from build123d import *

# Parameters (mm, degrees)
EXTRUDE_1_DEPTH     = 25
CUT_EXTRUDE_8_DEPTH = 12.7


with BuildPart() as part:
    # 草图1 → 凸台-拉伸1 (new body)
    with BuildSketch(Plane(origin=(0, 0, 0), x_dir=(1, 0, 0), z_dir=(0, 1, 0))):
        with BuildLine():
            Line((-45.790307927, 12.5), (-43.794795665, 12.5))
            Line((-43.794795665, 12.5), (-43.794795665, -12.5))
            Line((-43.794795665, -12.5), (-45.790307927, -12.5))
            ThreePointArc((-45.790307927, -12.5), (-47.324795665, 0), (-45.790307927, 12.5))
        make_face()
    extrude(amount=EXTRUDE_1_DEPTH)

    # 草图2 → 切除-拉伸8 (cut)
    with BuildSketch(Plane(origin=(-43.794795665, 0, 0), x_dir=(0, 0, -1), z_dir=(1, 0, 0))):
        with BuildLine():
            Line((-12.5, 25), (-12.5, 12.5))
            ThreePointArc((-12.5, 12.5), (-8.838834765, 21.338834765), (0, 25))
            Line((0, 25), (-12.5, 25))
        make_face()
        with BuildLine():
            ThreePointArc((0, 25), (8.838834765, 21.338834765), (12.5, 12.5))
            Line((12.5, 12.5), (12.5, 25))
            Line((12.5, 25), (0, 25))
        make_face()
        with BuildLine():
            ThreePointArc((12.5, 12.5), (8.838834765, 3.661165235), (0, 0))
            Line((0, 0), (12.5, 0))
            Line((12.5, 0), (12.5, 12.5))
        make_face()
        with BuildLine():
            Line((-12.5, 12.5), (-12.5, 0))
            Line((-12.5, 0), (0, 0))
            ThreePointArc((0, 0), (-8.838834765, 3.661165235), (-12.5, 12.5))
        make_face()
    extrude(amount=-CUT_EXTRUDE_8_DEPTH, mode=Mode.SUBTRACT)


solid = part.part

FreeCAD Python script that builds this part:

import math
import FreeCAD as App
import Part
import Sketcher
from FreeCAD import Vector

doc = App.newDocument("Part")
params = doc.addObject("Spreadsheet::Sheet", "Params")
for row, (alias, value) in enumerate([
    ("sketch1_height", "25 mm"),
    ("sketch1_radius", "51.68 mm"),
    ("pad1_length", "25 mm"),
    ("sketch2_radius", "12.5 mm"),
    ("pocket1_length", "12.7 mm"),
], start=1):
    params.set(f"A{row}", alias)
    params.set(f"B{row}", "=" + value)
    params.setAlias(f"B{row}", alias)

body = doc.addObject("PartDesign::Body", "Body")

# Sketch on XZ plane
sketch1 = body.newObject("Sketcher::SketchObject", "Sketch")
sketch1.AttachmentSupport = (doc.getObject("XZ_Plane"), [""])
sketch1.MapMode = "FlatFace"
sketch1.addGeometry(Part.LineSegment(Vector(-43.8, -12.5, 0), Vector(-45.8, -12.5, 0)), False)
sketch1.addGeometry(Part.ArcOfCircle(Part.Circle(Vector(4.4, 0, 0), Vector(0, 0, 1), 51.7), math.radians(166), math.radians(194)), False)
sketch1.addGeometry(Part.LineSegment(Vector(-45.8, 12.5, 0), Vector(-43.8, 12.5, 0)), False)
sketch1.addGeometry(Part.LineSegment(Vector(-43.8, 12.5, 0), Vector(-43.8, -12.5, 0)), False)
sketch1.addConstraint(Sketcher.Constraint("Coincident", 0, 2, 1, 2))
sketch1.addConstraint(Sketcher.Constraint("Coincident", 1, 1, 2, 1))
sketch1.addConstraint(Sketcher.Constraint("Coincident", 2, 2, 3, 1))
sketch1.addConstraint(Sketcher.Constraint("Coincident", 3, 2, 0, 1))
sketch1.addConstraint(Sketcher.Constraint("Horizontal", 0))
sketch1.addConstraint(Sketcher.Constraint("Horizontal", 2))
sketch1.addConstraint(Sketcher.Constraint("Vertical", 3))
sketch1.addConstraint(Sketcher.Constraint("Symmetric", 0, 2, 1, 1, -1))
sketch1.addConstraint(Sketcher.Constraint("DistanceY", 3, 2, 3, 1, 25.0))
sketch1.addConstraint(Sketcher.Constraint("Radius", 1, 51.68))
sketch1.addConstraint(Sketcher.Constraint("DistanceX", 2, 2, 1, 3, 48.15))
sketch1.addConstraint(Sketcher.Constraint("DistanceX", -1, 1, 1, 3, 4.355204))
sketch1.setExpression("Constraints[8]", "Params.sketch1_height")
sketch1.setExpression("Constraints[9]", "Params.sketch1_radius")
pad1 = body.newObject("PartDesign::Pad", "Pad")
pad1.Profile = sketch1
pad1.setExpression("Length", "Params.pad1_length")
pad1.Reversed = True

# Sketch on YZ plane
sketch2 = body.newObject("Sketcher::SketchObject", "Sketch001")
sketch2.AttachmentSupport = (doc.getObject("YZ_Plane"), [""])
sketch2.MapMode = "FlatFace"
sketch2.AttachmentOffset = App.Placement(Vector(0, 0, -43.794796), App.Rotation())
sketch2.addGeometry(Part.LineSegment(Vector(25, 12, 0), Vector(12, 12, 0)), False)
sketch2.addGeometry(Part.ArcOfCircle(Part.Circle(Vector(13, 0, 0), Vector(0, 0, 1), 12), math.radians(0), math.radians(90)), False)
sketch2.addGeometry(Part.LineSegment(Vector(25, 0, 0), Vector(25, 12, 0)), False)
sketch2.addGeometry(Part.ArcOfCircle(Part.Circle(Vector(13, 0, 0), Vector(0, 0, 1), 12), math.radians(-90), math.radians(0)), False)
sketch2.addGeometry(Part.LineSegment(Vector(12, -12, 0), Vector(25, -12, 0)), False)
sketch2.addGeometry(Part.LineSegment(Vector(25, -12, 0), Vector(25, 0, 0)), False)
sketch2.addGeometry(Part.ArcOfCircle(Part.Circle(Vector(12, 0, 0), Vector(0, 0, 1), 12), math.radians(180), math.radians(270)), False)
sketch2.addGeometry(Part.LineSegment(Vector(0, 0, 0), Vector(0, -12, 0)), False)
sketch2.addGeometry(Part.LineSegment(Vector(0, -12, 0), Vector(12, -12, 0)), False)
sketch2.addGeometry(Part.LineSegment(Vector(12, 12, 0), Vector(0, 12, 0)), False)
sketch2.addGeometry(Part.LineSegment(Vector(0, 12, 0), Vector(0, 0, 0)), False)
sketch2.addGeometry(Part.ArcOfCircle(Part.Circle(Vector(12, 0, 0), Vector(0, 0, 1), 12), math.radians(90), math.radians(180)), False)
sketch2.addConstraint(Sketcher.Constraint("Tangent", 0, 2, 1, 2))
sketch2.addConstraint(Sketcher.Constraint("Tangent", 1, 1, 2, 1))
sketch2.addConstraint(Sketcher.Constraint("Coincident", 2, 2, 0, 1))
sketch2.addConstraint(Sketcher.Constraint("Tangent", 3, 1, 4, 1))
sketch2.addConstraint(Sketcher.Constraint("Coincident", 4, 2, 5, 1))
sketch2.addConstraint(Sketcher.Constraint("Tangent", 5, 2, 3, 2))
sketch2.addConstraint(Sketcher.Constraint("Tangent", 6, 1, 7, 1))
sketch2.addConstraint(Sketcher.Constraint("Coincident", 7, 2, 8, 1))
sketch2.addConstraint(Sketcher.Constraint("Tangent", 8, 2, 6, 2))
sketch2.addConstraint(Sketcher.Constraint("Coincident", 9, 2, 10, 1))
sketch2.addConstraint(Sketcher.Constraint("Tangent", 10, 2, 11, 2))
sketch2.addConstraint(Sketcher.Constraint("Tangent", 11, 1, 9, 1))
sketch2.addConstraint(Sketcher.Constraint("Horizontal", 0))
sketch2.addConstraint(Sketcher.Constraint("Vertical", 2))
sketch2.addConstraint(Sketcher.Constraint("Horizontal", 4))
sketch2.addConstraint(Sketcher.Constraint("Vertical", 5))
sketch2.addConstraint(Sketcher.Constraint("Vertical", 7))
sketch2.addConstraint(Sketcher.Constraint("Horizontal", 8))
sketch2.addConstraint(Sketcher.Constraint("Horizontal", 9))
sketch2.addConstraint(Sketcher.Constraint("Vertical", 10))
sketch2.addConstraint(Sketcher.Constraint("Coincident", 6, 1, -1, 1))
sketch2.addConstraint(Sketcher.Constraint("Coincident", 10, 2, -1, 1))
sketch2.addConstraint(Sketcher.Constraint("Coincident", 3, 3, 1, 3))
sketch2.addConstraint(Sketcher.Constraint("Coincident", 6, 3, 1, 3))
sketch2.addConstraint(Sketcher.Constraint("Coincident", 11, 1, 0, 2))
sketch2.addConstraint(Sketcher.Constraint("Equal", 1, 3))
sketch2.addConstraint(Sketcher.Constraint("Radius", 1, 12.5))
sketch2.setExpression("Constraints[26]", "Params.sketch2_radius")
pocket1 = body.newObject("PartDesign::Pocket", "Pocket")
pocket1.Profile = sketch2
pocket1.setExpression("Length", "Params.pocket1_length")

doc.recompute()
